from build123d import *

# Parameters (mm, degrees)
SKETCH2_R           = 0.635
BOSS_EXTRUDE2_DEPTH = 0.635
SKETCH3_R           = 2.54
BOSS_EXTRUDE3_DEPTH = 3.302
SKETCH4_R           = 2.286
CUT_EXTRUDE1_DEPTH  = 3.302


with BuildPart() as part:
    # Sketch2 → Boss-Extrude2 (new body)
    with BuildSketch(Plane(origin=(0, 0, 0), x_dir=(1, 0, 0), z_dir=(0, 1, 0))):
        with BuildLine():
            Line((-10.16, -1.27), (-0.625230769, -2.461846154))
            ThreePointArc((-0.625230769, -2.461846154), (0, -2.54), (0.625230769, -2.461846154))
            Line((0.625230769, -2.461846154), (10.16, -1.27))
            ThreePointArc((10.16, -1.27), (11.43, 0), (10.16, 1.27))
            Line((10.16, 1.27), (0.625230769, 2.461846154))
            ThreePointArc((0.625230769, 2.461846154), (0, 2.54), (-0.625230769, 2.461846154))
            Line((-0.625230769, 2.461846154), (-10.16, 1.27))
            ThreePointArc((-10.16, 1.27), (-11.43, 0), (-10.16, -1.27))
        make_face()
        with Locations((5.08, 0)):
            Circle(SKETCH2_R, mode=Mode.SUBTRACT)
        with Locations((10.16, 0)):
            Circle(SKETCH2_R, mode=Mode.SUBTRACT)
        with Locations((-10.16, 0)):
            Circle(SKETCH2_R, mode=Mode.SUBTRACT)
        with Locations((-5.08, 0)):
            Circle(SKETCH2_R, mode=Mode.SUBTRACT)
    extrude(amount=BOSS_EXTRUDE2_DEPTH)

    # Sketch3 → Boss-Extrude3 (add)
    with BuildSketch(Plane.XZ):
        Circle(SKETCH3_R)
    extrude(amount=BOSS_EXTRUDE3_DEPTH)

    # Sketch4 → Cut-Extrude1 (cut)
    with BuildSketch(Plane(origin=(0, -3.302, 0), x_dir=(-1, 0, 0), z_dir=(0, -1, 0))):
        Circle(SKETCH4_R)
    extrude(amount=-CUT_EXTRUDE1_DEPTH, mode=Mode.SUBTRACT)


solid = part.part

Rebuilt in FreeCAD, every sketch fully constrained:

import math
import FreeCAD as App
import Part
import Sketcher
Q = App.Units.Quantity

doc = App.newDocument("Part")
body = doc.addObject("PartDesign::Body", "Body")

# Sketch on XZ plane
sketch1 = body.newObject("Sketcher::SketchObject", "Sketch")
sketch1.AttachmentSupport = (doc.getObject("XZ_Plane"), [""])
sketch1.MapMode = "FlatFace"
sketch1.addGeometry([
    Part.LineSegment(App.Vector(-10.2, 1.3, 0), App.Vector(-0.6, 2.5, 0)),  # 0
    Part.ArcOfCircle(Part.Circle(App.Vector(0, 0, 0), App.Vector(0, 0, 1), 2.5), math.radians(76), math.radians(104)),  # 1
    Part.LineSegment(App.Vector(0.6, 2.5, 0), App.Vector(10.2, 1.3, 0)),  # 2
    Part.ArcOfCircle(Part.Circle(App.Vector(10.2, 0, 0), App.Vector(0, 0, 1), 1.3), math.radians(-90), math.radians(90)),  # 3
    Part.LineSegment(App.Vector(10.2, -1.3, 0), App.Vector(0.6, -2.5, 0)),  # 4
    Part.ArcOfCircle(Part.Circle(App.Vector(0, 0, 0), App.Vector(0, 0, 1), 2.5), math.radians(-104), math.radians(-76)),  # 5
    Part.LineSegment(App.Vector(-0.6, -2.5, 0), App.Vector(-10.2, -1.3, 0)),  # 6
    Part.ArcOfCircle(Part.Circle(App.Vector(-10.2, 0, 0), App.Vector(0, 0, 1), 1.3), math.radians(90), math.radians(270)),  # 7
    Part.Circle(App.Vector(-10.2, 0, 0), App.Vector(0, 0, 1), 0.6),  # 8
    Part.Circle(App.Vector(-5.1, 0, 0), App.Vector(0, 0, 1), 0.6),  # 9
    Part.Circle(App.Vector(5.1, 0, 0), App.Vector(0, 0, 1), 0.6),  # 10
    Part.Circle(App.Vector(10.2, 0, 0), App.Vector(0, 0, 1), 0.6),  # 11
], False)
sketch1.addConstraint([
    Sketcher.Constraint("Coincident", 0, 2, 1, 2),
    Sketcher.Constraint("Coincident", 1, 1, 2, 1),
    Sketcher.Constraint("Coincident", 2, 2, 3, 2),
    Sketcher.Constraint("Coincident", 3, 1, 4, 1),
    Sketcher.Constraint("Coincident", 4, 2, 5, 2),
    Sketcher.Constraint("Coincident", 5, 1, 6, 1),
    Sketcher.Constraint("Coincident", 6, 2, 7, 2),
    Sketcher.Constraint("Coincident", 7, 1, 0, 1),
    Sketcher.Constraint("Coincident", 1, 3, -1, 1),
    Sketcher.Constraint("Coincident", 5, 3, -1, 1),
    Sketcher.Constraint("Coincident", 8, 3, 7, 3),
    Sketcher.Constraint("Coincident", 11, 3, 3, 3),
    Sketcher.Constraint("Equal", 1, 5),
    Sketcher.Constraint("Equal", 3, 7),
    Sketcher.Constraint("Equal", 8, 9),
    Sketcher.Constraint("Equal", 9, 10),
    Sketcher.Constraint("Equal", 10, 11),
    Sketcher.Constraint("Symmetric", 3, 3, 7, 3, -1, 1),
    Sketcher.Constraint("Symmetric", 9, 3, 10, 3, -1, 1),
    Sketcher.Constraint("Symmetric", 3, 1, 6, 2, -2),
    Sketcher.Constraint("PointOnObject", 9, 3, -1),
    Sketcher.Constraint("Parallel", 0, 4),
    Sketcher.Constraint("Parallel", 2, 6),
    Sketcher.Constraint("Horizontal", 0, 2, 1, 1),
    Sketcher.Constraint("Horizontal", 4, 2, 5, 1),
    Sketcher.Constraint("Vertical", 11, 3, 2, 2),
    Sketcher.Constraint("Vertical", 2, 2, 3, 1),
    Sketcher.Constraint("Radius", 1, Q("0.1 in")),
    Sketcher.Constraint("Diameter", 8, Q("0.05 in")),
    Sketcher.Constraint("Radius", 3, Q("0.05 in")),
    Sketcher.Constraint("DistanceX", -1, 1, 3, 3, Q("0.4 in")),
    Sketcher.Constraint("DistanceX", 9, 3, -1, 1, Q("0.2 in")),
    Sketcher.Constraint("Distance", 0, 9.608971),
])
pad1 = body.newObject("PartDesign::Pad", "Pad")
pad1.Profile = sketch1
pad1.Length = Q("0.025 in")
pad1.Reversed = True

# Sketch on XZ plane
sketch2 = body.newObject("Sketcher::SketchObject", "Sketch001")
sketch2.AttachmentSupport = (doc.getObject("XZ_Plane"), [""])
sketch2.MapMode = "FlatFace"
sketch2.addGeometry(Part.Circle(App.Vector(0, 0, 0), App.Vector(0, 0, 1), 2.5), False)
sketch2.addConstraint([
    Sketcher.Constraint("Coincident", 0, 3, -1, 1),
    Sketcher.Constraint("Diameter", 0, Q("0.2 in")),
])
pad2 = body.newObject("PartDesign::Pad", "Pad001")
pad2.Profile = sketch2
pad2.Length = Q("0.13 in")

# Sketch on XZ plane
sketch3 = body.newObject("Sketcher::SketchObject", "Sketch002")
sketch3.AttachmentSupport = (doc.getObject("XZ_Plane"), [""])
sketch3.MapMode = "FlatFace"
sketch3.AttachmentOffset = App.Placement(App.Vector(0, 0, 0.13 * 25.4), App.Rotation())
sketch3.addGeometry(Part.Circle(App.Vector(0, 0, 0), App.Vector(0, 0, 1), 2.3), False)
sketch3.addConstraint([
    Sketcher.Constraint("Coincident", 0, 3, -1, 1),
    Sketcher.Constraint("Diameter", 0, Q("0.18 in")),
])
pocket1 = body.newObject("PartDesign::Pocket", "Pocket")
pocket1.Profile = sketch3
pocket1.Length = Q("0.13 in")

doc.recompute()
